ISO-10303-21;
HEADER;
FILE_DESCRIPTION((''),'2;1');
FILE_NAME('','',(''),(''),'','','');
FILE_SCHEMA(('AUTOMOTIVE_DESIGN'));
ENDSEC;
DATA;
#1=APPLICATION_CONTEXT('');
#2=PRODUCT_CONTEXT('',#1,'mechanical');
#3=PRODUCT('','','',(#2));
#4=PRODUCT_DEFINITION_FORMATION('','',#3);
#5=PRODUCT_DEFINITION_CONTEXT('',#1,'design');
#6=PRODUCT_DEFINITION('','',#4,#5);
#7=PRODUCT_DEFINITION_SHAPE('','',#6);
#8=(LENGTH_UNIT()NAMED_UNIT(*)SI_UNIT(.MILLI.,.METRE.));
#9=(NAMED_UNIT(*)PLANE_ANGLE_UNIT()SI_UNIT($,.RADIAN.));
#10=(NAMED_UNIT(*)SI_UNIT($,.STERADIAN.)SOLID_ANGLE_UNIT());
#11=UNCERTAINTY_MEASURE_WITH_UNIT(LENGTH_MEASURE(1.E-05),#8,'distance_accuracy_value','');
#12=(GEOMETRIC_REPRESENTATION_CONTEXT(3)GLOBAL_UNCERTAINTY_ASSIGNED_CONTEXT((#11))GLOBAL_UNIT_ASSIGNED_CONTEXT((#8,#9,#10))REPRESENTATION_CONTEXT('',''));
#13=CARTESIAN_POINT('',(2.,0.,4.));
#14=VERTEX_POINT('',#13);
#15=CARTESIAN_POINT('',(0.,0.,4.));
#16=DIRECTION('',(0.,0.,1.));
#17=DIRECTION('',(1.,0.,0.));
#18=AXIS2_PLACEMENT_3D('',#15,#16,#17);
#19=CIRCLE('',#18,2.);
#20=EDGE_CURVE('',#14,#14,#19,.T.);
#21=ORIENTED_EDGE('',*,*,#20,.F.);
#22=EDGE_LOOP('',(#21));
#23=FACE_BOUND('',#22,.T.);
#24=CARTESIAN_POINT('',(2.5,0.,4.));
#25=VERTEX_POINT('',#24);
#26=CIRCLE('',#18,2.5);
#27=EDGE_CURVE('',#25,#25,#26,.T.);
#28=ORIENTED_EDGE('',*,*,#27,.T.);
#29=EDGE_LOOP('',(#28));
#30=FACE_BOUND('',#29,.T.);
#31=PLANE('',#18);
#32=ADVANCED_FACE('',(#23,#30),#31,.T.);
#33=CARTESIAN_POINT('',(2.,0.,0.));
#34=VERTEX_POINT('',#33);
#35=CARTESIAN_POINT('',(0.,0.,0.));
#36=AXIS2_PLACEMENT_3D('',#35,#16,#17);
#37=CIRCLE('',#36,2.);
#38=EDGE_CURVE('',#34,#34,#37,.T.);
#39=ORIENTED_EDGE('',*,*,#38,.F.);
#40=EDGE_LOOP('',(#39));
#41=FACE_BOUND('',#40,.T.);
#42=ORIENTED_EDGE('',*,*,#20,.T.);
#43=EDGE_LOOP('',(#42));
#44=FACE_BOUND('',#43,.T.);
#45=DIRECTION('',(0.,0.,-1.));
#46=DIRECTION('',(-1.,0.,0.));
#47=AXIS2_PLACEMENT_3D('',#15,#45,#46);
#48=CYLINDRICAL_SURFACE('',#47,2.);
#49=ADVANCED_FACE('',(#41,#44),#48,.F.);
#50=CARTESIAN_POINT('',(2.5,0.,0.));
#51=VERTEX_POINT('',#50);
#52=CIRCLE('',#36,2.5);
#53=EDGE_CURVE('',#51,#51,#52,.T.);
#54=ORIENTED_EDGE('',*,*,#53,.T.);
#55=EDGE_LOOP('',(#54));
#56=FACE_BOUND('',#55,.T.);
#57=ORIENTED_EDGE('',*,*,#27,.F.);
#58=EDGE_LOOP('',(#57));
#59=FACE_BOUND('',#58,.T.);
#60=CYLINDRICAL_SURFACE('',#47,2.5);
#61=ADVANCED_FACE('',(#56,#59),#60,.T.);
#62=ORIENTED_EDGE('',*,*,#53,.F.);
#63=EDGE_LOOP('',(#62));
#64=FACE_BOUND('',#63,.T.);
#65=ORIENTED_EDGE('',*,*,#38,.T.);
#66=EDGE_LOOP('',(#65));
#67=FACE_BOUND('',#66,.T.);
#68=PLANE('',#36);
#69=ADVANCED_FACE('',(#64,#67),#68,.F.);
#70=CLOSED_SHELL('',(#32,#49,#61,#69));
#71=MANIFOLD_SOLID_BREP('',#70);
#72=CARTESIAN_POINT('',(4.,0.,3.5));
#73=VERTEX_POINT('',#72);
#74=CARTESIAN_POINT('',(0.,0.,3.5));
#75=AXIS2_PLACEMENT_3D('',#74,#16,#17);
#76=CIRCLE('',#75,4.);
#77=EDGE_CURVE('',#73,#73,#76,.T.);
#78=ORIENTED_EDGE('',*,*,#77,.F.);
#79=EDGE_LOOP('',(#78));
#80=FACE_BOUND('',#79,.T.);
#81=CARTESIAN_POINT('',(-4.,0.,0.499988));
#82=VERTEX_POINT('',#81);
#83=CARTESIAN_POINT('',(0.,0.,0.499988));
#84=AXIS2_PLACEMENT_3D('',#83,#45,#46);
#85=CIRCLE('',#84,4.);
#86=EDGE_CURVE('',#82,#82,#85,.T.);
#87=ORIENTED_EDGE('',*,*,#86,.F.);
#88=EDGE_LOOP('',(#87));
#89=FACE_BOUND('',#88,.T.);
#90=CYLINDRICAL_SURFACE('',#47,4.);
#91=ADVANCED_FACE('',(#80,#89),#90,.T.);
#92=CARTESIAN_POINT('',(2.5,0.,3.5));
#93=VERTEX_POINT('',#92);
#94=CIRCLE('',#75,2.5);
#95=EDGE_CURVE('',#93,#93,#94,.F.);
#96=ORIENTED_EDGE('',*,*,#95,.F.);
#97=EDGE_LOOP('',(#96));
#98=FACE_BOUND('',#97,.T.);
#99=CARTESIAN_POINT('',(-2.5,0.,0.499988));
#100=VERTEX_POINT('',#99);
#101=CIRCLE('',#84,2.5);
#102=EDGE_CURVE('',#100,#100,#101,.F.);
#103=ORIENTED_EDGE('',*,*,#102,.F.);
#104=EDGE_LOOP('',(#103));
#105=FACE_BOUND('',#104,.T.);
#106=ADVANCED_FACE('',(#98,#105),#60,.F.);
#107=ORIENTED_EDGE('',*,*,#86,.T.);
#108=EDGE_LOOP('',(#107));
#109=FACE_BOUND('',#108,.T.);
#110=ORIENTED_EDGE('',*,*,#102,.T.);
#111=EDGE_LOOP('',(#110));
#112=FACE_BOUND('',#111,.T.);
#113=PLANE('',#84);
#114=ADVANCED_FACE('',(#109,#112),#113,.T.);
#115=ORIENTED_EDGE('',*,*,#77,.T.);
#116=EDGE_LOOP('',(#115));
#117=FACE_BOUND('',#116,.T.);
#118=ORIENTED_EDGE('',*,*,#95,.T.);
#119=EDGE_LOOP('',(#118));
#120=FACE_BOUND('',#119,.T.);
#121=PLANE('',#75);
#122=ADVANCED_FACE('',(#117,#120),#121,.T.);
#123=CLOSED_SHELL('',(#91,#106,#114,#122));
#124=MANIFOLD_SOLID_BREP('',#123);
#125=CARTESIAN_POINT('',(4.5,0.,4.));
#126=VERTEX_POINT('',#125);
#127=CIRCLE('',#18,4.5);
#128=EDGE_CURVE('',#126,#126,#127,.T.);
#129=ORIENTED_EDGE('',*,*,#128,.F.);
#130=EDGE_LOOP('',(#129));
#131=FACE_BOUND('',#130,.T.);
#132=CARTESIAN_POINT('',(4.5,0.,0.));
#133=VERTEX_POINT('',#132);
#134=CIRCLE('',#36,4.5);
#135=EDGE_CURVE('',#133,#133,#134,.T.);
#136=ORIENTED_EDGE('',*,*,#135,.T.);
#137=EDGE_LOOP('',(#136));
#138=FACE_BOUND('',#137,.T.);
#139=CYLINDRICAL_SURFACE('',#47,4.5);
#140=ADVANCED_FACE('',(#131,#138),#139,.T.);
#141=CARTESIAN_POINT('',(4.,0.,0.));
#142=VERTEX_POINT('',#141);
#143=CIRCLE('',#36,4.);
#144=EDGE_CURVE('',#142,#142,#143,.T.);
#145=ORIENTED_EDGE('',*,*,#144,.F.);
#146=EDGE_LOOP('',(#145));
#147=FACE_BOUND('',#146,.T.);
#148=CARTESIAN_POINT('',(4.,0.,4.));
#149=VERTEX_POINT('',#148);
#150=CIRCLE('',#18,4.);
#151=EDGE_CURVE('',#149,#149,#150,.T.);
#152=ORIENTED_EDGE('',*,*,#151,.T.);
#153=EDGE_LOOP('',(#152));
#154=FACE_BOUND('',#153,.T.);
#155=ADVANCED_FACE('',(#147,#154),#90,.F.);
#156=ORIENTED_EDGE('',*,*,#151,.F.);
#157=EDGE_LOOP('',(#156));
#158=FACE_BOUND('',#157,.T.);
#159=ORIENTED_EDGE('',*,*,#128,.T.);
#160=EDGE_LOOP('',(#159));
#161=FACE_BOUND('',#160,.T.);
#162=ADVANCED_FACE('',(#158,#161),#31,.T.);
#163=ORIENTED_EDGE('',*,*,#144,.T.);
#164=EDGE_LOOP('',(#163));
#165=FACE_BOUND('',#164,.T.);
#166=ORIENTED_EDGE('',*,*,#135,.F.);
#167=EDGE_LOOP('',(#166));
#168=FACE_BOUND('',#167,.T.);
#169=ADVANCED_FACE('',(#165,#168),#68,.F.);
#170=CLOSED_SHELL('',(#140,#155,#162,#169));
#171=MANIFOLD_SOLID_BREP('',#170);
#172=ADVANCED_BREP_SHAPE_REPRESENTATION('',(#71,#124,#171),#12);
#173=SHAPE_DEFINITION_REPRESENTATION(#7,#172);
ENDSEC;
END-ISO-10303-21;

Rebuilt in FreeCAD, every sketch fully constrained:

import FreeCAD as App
import Part
import Sketcher
from FreeCAD import Vector
Q = App.Units.Quantity

doc = App.newDocument("Part")
body = doc.addObject("PartDesign::Body", "Body")

sketch1 = body.newObject("Sketcher::SketchObject", "Sketch")
sketch1.AttachmentSupport = (doc.getObject("XY_Plane"), [""])
sketch1.MapMode = "FlatFace"
sketch1.addGeometry([
    Part.Circle(Vector(0, 0, 0), Vector(0, 0, 1), 4.5),
    Part.Circle(Vector(0, 0, 0), Vector(0, 0, 1), 4),
], False)
sketch1.addConstraint([
    Sketcher.Constraint("Coincident", 0, 3, -1, 1),
    Sketcher.Constraint("Coincident", 1, 3, -1, 1),
    Sketcher.Constraint("Diameter", 0, Q("9 mm")),
    Sketcher.Constraint("Diameter", 1, Q("8 mm")),
])
pad1 = body.newObject("PartDesign::Pad", "Pad")
pad1.Profile = sketch1
pad1.Length = 4
body2 = doc.addObject("PartDesign::Body", "Body001")

sketch2 = body2.newObject("Sketcher::SketchObject", "Sketch001")
sketch2.AttachmentSupport = (doc.getObject("XY_Plane001"), [""])
sketch2.MapMode = "FlatFace"
sketch2.addGeometry([
    Part.Circle(Vector(0, 0, 0), Vector(0, 0, 1), 2.5),
    Part.Circle(Vector(0, 0, 0), Vector(0, 0, 1), 2),
], False)
sketch2.addConstraint([
    Sketcher.Constraint("Coincident", 0, 3, -1, 1),
    Sketcher.Constraint("Coincident", 1, 3, -1, 1),
    Sketcher.Constraint("Diameter", 0, Q("5 mm")),
    Sketcher.Constraint("Diameter", 1, Q("4 mm")),
])
pad2 = body2.newObject("PartDesign::Pad", "Pad001")
pad2.Profile = sketch2
pad2.Length = 4
body3 = doc.addObject("PartDesign::Body", "Body002")

sketch3 = body3.newObject("Sketcher::SketchObject", "Sketch002")
sketch3.AttachmentSupport = (doc.getObject("XY_Plane002"), [""])
sketch3.MapMode = "FlatFace"
sketch3.AttachmentOffset = App.Placement(Vector(0, 0, -0.000012), App.Rotation())
sketch3.addGeometry([
    Part.Circle(Vector(0, 0, 0), Vector(0, 0, 1), 4),
    Part.Circle(Vector(0, 0, 0), Vector(0, 0, 1), 2.5),
], False)
sketch3.addConstraint([
    Sketcher.Constraint("Coincident", 0, 3, -1, 1),
    Sketcher.Constraint("Coincident", 1, 3, -1, 1),
    Sketcher.Constraint("Diameter", 0, Q("8 mm")),
    Sketcher.Constraint("Diameter", 1, Q("5 mm")),
])
pad3 = body3.newObject("PartDesign::Pad", "Pad002")
pad3.Profile = sketch3
pad3.Length = 4.000012

sketch4 = body3.newObject("Sketcher::SketchObject", "Sketch003")
sketch4.AttachmentSupport = (doc.getObject("XY_Plane002"), [""])
sketch4.MapMode = "FlatFace"
sketch4.AttachmentOffset = App.Placement(Vector(0, 0, -0.000012), App.Rotation())
sketch4.addGeometry([
    Part.Circle(Vector(0, 0, 0), Vector(0, 0, 1), 4),
    Part.Circle(Vector(0, 0, 0), Vector(0, 0, 1), 2.5),
], False)
sketch4.addConstraint([
    Sketcher.Constraint("Coincident", 0, 3, -1, 1),
    Sketcher.Constraint("Coincident", 1, 3, -1, 1),
    Sketcher.Constraint("Diameter", 0, Q("8 mm")),
    Sketcher.Constraint("Diameter", 1, Q("5 mm")),
])
pocket1 = body3.newObject("PartDesign::Pocket", "Pocket")
pocket1.Profile = sketch4
pocket1.Length = 0.5
pocket1.Reversed = True

sketch5 = body3.newObject("Sketcher::SketchObject", "Sketch004")
sketch5.AttachmentSupport = (doc.getObject("XY_Plane002"), [""])
sketch5.MapMode = "FlatFace"
sketch5.AttachmentOffset = App.Placement(Vector(0, 0, 3.5), App.Rotation())
sketch5.addGeometry([
    Part.Circle(Vector(0, 0, 0), Vector(0, 0, 1), 4),
    Part.Circle(Vector(0, 0, 0), Vector(0, 0, 1), 2.5),
], False)
sketch5.addConstraint([
    Sketcher.Constraint("Coincident", 0, 3, -1, 1),
    Sketcher.Constraint("Coincident", 1, 3, -1, 1),
    Sketcher.Constraint("Diameter", 0, Q("8 mm")),
    Sketcher.Constraint("Diameter", 1, Q("5 mm")),
])
pocket2 = body3.newObject("PartDesign::Pocket", "Pocket001")
pocket2.Profile = sketch5
pocket2.Length = 0.5
pocket2.Reversed = True

doc.recompute()
